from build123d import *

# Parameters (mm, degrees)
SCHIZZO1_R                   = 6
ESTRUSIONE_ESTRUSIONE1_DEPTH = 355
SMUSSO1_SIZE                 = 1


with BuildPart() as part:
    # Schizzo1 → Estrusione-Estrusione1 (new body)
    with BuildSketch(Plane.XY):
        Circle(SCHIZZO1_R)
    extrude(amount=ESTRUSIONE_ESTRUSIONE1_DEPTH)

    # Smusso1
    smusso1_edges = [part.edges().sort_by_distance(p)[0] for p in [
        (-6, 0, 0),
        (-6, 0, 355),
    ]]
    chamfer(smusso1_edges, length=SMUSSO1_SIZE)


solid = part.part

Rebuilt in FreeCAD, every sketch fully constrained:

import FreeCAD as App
import Part
import Sketcher

V = App.Vector
Q = App.Units.Quantity


def edges_at(feature, points):
    """Names of the edges that pass closest to the given points."""
    edges = feature.Shape.Edges
    near = lambda p: min(range(len(edges)), key=lambda i: edges[i].distToShape(Part.Vertex(*p))[0])
    return sorted({f"Edge{near(p) + 1}" for p in points})

doc = App.newDocument("Part")
params = doc.addObject("Spreadsheet::Sheet", "Params")
for row, (alias, value) in enumerate([
    ("sketch1_diameter", "12 mm"),
    ("pad1_length", "355 mm"),
    ("chamfer_size", "1 mm"),
], start=1):
    params.set(f"A{row}", alias)
    params.set(f"B{row}", "=" + value)
    params.setAlias(f"B{row}", alias)

body = doc.addObject("PartDesign::Body", "Body")

# Sketch on XY plane
sketch1 = body.newObject("Sketcher::SketchObject", "Sketch")
sketch1.AttachmentSupport = (doc.getObject("XY_Plane"), [""])
sketch1.MapMode = "FlatFace"
sketch1.addGeometry(Part.Circle(V(0, 0, 0), V(0, 0, 1), 6), False)
sketch1.addConstraint([
    Sketcher.Constraint("Coincident", 0, 3, -1, 1),
    Sketcher.Constraint("Diameter", 0, Q("12 mm")),
])
sketch1.setExpression("Constraints[1]", "Params.sketch1_diameter")
pad1 = body.newObject("PartDesign::Pad", "Pad")
pad1.Profile = sketch1
pad1.setExpression("Length", "Params.pad1_length")
doc.recompute()

chamfer = body.newObject("PartDesign::Chamfer", "Chamfer")
chamfer.Base = (pad1, edges_at(pad1, [(-6, 0, 0), (-6, 0, 355)]))
chamfer.setExpression("Size", "Params.chamfer_size")

doc.recompute()
